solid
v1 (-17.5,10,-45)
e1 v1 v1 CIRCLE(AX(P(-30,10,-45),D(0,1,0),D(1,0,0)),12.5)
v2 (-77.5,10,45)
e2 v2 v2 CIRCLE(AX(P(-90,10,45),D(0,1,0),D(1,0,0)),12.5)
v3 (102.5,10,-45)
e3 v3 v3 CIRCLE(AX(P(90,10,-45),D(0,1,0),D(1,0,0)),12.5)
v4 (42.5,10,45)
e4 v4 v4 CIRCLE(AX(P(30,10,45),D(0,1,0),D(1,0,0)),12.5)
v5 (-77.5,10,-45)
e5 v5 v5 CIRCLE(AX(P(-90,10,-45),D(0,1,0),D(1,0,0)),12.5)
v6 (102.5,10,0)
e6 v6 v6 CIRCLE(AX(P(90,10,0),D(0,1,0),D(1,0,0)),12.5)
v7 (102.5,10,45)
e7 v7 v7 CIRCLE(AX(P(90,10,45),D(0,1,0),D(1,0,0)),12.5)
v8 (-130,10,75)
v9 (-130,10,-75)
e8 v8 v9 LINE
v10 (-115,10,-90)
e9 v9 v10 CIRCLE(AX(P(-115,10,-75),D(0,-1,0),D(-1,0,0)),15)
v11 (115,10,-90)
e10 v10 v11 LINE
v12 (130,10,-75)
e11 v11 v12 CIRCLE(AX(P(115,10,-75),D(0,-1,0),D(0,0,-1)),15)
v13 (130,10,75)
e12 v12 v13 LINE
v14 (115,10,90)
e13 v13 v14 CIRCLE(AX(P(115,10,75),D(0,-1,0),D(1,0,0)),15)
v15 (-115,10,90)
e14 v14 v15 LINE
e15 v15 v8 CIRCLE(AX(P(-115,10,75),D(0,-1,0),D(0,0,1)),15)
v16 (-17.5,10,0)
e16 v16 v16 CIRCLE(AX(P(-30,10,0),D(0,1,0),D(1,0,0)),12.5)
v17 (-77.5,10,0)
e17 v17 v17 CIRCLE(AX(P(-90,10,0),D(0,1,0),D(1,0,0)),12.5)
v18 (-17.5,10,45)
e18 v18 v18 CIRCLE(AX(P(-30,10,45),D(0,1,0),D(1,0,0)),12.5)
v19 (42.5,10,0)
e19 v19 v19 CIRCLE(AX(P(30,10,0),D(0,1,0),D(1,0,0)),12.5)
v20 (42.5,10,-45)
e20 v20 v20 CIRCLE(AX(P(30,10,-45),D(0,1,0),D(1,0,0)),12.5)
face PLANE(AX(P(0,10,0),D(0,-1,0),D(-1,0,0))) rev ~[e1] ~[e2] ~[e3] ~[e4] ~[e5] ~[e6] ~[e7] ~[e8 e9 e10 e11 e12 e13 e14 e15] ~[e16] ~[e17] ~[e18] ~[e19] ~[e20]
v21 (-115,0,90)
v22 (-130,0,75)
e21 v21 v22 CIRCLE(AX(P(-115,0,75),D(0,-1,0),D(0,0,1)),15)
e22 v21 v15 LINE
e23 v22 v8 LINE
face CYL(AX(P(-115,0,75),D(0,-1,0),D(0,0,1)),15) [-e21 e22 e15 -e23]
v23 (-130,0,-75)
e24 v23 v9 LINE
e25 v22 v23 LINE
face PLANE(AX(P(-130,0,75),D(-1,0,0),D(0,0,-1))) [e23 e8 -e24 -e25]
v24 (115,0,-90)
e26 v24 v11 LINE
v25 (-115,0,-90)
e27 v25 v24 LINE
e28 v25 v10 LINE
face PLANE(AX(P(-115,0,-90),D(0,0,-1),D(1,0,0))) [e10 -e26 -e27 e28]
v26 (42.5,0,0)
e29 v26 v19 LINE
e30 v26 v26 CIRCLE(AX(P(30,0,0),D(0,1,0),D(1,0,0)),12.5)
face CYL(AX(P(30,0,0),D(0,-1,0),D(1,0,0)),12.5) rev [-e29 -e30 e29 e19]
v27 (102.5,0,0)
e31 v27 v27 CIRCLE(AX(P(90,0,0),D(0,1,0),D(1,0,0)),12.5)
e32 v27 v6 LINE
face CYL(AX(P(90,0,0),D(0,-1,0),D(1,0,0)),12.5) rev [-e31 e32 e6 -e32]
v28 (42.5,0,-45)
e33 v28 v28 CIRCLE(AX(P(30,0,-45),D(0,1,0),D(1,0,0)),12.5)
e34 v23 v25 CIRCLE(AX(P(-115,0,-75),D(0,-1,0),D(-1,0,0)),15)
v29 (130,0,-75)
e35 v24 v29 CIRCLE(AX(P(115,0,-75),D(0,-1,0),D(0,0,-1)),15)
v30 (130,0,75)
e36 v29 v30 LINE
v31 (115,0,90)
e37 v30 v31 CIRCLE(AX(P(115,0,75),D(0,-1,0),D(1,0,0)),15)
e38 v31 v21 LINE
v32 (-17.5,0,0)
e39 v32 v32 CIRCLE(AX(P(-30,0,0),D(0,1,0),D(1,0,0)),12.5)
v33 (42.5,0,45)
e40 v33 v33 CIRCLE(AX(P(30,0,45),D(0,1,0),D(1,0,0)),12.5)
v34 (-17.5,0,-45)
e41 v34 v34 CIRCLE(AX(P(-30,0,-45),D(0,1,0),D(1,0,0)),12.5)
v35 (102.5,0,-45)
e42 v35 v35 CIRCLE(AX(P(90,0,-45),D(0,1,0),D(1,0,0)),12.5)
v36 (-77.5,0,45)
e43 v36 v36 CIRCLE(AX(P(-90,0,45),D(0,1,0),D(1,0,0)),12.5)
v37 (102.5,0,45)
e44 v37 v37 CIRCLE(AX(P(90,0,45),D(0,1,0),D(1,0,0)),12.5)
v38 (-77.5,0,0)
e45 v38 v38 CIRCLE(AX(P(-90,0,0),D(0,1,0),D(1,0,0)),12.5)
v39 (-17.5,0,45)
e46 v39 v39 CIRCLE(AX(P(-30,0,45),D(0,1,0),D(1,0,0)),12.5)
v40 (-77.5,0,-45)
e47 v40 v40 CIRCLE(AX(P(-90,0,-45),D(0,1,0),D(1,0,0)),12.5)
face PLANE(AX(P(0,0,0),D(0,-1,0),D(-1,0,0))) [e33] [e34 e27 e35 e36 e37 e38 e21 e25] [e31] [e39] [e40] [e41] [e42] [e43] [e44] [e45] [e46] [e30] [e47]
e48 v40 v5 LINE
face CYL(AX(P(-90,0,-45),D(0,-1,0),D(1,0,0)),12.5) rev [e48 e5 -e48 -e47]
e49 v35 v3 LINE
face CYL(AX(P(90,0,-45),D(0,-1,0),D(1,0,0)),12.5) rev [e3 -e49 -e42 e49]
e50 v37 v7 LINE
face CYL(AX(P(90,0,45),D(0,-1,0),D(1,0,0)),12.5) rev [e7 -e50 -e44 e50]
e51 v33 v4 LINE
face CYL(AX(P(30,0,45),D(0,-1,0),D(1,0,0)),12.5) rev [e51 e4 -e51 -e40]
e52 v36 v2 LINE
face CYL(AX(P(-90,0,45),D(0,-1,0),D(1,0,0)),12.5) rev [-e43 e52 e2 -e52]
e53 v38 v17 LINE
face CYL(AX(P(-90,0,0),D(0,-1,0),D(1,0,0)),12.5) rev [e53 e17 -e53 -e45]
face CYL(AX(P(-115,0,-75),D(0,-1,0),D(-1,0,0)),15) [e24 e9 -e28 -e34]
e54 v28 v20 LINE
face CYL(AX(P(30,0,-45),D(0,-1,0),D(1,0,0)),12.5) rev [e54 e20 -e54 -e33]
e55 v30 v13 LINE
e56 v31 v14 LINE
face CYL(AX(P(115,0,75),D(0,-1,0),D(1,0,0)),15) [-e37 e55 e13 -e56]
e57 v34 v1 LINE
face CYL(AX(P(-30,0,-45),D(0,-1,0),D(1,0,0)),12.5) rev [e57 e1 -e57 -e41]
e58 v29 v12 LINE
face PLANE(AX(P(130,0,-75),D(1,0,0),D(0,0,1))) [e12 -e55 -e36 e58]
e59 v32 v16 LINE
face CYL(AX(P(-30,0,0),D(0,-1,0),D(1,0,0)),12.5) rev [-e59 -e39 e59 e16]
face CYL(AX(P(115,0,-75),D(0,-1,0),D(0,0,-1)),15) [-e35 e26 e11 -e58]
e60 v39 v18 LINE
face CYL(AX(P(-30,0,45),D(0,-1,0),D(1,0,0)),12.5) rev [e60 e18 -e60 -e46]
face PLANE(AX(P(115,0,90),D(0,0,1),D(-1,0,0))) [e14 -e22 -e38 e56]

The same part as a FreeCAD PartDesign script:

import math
import FreeCAD as App
import Part
import Sketcher
from FreeCAD import Vector

doc = App.newDocument("Part")
body = doc.addObject("PartDesign::Body", "Body")

sketch1 = body.newObject("Sketcher::SketchObject", "Sketch")
sketch1.AttachmentSupport = (doc.getObject("XZ_Plane"), [""])
sketch1.MapMode = "FlatFace"
sketch1.addGeometry([
    Part.LineSegment(Vector(115, -90, 0), Vector(-115, -90, 0)),
    Part.ArcOfCircle(Part.Circle(Vector(-115, -75, 0), Vector(0, 0, 1), 15), math.radians(180), math.radians(270)),
    Part.LineSegment(Vector(-130, -75, 0), Vector(-130, 75, 0)),
    Part.ArcOfCircle(Part.Circle(Vector(-115, 75, 0), Vector(0, 0, 1), 15), math.radians(90), math.radians(180)),
    Part.LineSegment(Vector(-115, 90, 0), Vector(115, 90, 0)),
    Part.ArcOfCircle(Part.Circle(Vector(115, 75, 0), Vector(0, 0, 1), 15), math.radians(0), math.radians(90)),
    Part.LineSegment(Vector(130, 75, 0), Vector(130, -75, 0)),
    Part.ArcOfCircle(Part.Circle(Vector(115, -75, 0), Vector(0, 0, 1), 15), math.radians(-90), math.radians(0)),
    Part.Circle(Vector(90, 45, 0), Vector(0, 0, 1), 12.5),
    Part.Circle(Vector(30, 45, 0), Vector(0, 0, 1), 12.5),
    Part.Circle(Vector(-30, 45, 0), Vector(0, 0, 1), 12.5),
    Part.Circle(Vector(-90, 45, 0), Vector(0, 0, 1), 12.5),
    Part.Circle(Vector(90, 0, 0), Vector(0, 0, 1), 12.5),
    Part.Circle(Vector(30, 0, 0), Vector(0, 0, 1), 12.5),
    Part.Circle(Vector(90, -45, 0), Vector(0, 0, 1), 12.5),
    Part.Circle(Vector(30, -45, 0), Vector(0, 0, 1), 12.5),
    Part.Circle(Vector(-30, 0, 0), Vector(0, 0, 1), 12.5),
    Part.Circle(Vector(-90, 0, 0), Vector(0, 0, 1), 12.5),
    Part.Circle(Vector(-30, -45, 0), Vector(0, 0, 1), 12.5),
    Part.Circle(Vector(-90, -45, 0), Vector(0, 0, 1), 12.5),
], False)
sketch1.addConstraint([
    Sketcher.Constraint("Tangent", 0, 2, 1, 2),
    Sketcher.Constraint("Tangent", 1, 1, 2, 1),
    Sketcher.Constraint("Tangent", 2, 2, 3, 2),
    Sketcher.Constraint("Tangent", 3, 1, 4, 1),
    Sketcher.Constraint("Tangent", 4, 2, 5, 2),
    Sketcher.Constraint("Tangent", 5, 1, 6, 1),
    Sketcher.Constraint("Tangent", 6, 2, 7, 2),
    Sketcher.Constraint("Tangent", 7, 1, 0, 1),
    Sketcher.Constraint("Horizontal", 0),
    Sketcher.Constraint("Vertical", 2),
    Sketcher.Constraint("Horizontal", 4),
    Sketcher.Constraint("Vertical", 6),
    Sketcher.Constraint("Equal", 1, 3),
    Sketcher.Constraint("Equal", 3, 5),
    Sketcher.Constraint("Equal", 5, 7),
    Sketcher.Constraint("Equal", 8, 9),
    Sketcher.Constraint("Equal", 9, 10),
    Sketcher.Constraint("Equal", 10, 11),
    Sketcher.Constraint("Equal", 11, 12),
    Sketcher.Constraint("Equal", 12, 13),
    Sketcher.Constraint("Equal", 13, 14),
    Sketcher.Constraint("Equal", 14, 15),
    Sketcher.Constraint("Equal", 15, 16),
    Sketcher.Constraint("Equal", 16, 17),
    Sketcher.Constraint("Equal", 17, 18),
    Sketcher.Constraint("Equal", 18, 19),
    Sketcher.Constraint("Symmetric", 1, 3, 5, 3, -1, 1),
    Sketcher.Constraint("Symmetric", 11, 3, 14, 3, -1, 1),
    Sketcher.Constraint("Symmetric", 10, 3, 15, 3, -1, 1),
    Sketcher.Constraint("Symmetric", 13, 3, 16, 3, -1, 1),
    Sketcher.Constraint("Symmetric", 12, 3, 17, 3, -1, 1),
    Sketcher.Constraint("Symmetric", 9, 3, 18, 3, -1, 1),
    Sketcher.Constraint("Symmetric", 8, 3, 19, 3, -1, 1),
    Sketcher.Constraint("Symmetric", 9, 3, 10, 3, -2),
    Sketcher.Constraint("Symmetric", 8, 3, 11, 3, -2),
    Sketcher.Constraint("PointOnObject", 12, 3, -1),
    Sketcher.Constraint("PointOnObject", 13, 3, -1),
    Sketcher.Constraint("Horizontal", 8, 3, 9, 3),
    Sketcher.Constraint("Vertical", 8, 3, 12, 3),
    Sketcher.Constraint("Vertical", 9, 3, 13, 3),
    Sketcher.Constraint("Diameter", 8, 25.0),
    Sketcher.Constraint("Radius", 1, 15.0),
    Sketcher.Constraint("DistanceX", 0, 2, 0, 1, 230.0),
    Sketcher.Constraint("DistanceY", 2, 1, 2, 2, 150.0),
    Sketcher.Constraint("DistanceX", -1, 1, 8, 3, 90.0),
    Sketcher.Constraint("DistanceY", -1, 1, 8, 3, 45.0),
    Sketcher.Constraint("DistanceX", -1, 1, 9, 3, 30.0),
])
pad1 = body.newObject("PartDesign::Pad", "Pad")
pad1.Profile = sketch1
pad1.Length = 10
pad1.Reversed = True

doc.recompute()
